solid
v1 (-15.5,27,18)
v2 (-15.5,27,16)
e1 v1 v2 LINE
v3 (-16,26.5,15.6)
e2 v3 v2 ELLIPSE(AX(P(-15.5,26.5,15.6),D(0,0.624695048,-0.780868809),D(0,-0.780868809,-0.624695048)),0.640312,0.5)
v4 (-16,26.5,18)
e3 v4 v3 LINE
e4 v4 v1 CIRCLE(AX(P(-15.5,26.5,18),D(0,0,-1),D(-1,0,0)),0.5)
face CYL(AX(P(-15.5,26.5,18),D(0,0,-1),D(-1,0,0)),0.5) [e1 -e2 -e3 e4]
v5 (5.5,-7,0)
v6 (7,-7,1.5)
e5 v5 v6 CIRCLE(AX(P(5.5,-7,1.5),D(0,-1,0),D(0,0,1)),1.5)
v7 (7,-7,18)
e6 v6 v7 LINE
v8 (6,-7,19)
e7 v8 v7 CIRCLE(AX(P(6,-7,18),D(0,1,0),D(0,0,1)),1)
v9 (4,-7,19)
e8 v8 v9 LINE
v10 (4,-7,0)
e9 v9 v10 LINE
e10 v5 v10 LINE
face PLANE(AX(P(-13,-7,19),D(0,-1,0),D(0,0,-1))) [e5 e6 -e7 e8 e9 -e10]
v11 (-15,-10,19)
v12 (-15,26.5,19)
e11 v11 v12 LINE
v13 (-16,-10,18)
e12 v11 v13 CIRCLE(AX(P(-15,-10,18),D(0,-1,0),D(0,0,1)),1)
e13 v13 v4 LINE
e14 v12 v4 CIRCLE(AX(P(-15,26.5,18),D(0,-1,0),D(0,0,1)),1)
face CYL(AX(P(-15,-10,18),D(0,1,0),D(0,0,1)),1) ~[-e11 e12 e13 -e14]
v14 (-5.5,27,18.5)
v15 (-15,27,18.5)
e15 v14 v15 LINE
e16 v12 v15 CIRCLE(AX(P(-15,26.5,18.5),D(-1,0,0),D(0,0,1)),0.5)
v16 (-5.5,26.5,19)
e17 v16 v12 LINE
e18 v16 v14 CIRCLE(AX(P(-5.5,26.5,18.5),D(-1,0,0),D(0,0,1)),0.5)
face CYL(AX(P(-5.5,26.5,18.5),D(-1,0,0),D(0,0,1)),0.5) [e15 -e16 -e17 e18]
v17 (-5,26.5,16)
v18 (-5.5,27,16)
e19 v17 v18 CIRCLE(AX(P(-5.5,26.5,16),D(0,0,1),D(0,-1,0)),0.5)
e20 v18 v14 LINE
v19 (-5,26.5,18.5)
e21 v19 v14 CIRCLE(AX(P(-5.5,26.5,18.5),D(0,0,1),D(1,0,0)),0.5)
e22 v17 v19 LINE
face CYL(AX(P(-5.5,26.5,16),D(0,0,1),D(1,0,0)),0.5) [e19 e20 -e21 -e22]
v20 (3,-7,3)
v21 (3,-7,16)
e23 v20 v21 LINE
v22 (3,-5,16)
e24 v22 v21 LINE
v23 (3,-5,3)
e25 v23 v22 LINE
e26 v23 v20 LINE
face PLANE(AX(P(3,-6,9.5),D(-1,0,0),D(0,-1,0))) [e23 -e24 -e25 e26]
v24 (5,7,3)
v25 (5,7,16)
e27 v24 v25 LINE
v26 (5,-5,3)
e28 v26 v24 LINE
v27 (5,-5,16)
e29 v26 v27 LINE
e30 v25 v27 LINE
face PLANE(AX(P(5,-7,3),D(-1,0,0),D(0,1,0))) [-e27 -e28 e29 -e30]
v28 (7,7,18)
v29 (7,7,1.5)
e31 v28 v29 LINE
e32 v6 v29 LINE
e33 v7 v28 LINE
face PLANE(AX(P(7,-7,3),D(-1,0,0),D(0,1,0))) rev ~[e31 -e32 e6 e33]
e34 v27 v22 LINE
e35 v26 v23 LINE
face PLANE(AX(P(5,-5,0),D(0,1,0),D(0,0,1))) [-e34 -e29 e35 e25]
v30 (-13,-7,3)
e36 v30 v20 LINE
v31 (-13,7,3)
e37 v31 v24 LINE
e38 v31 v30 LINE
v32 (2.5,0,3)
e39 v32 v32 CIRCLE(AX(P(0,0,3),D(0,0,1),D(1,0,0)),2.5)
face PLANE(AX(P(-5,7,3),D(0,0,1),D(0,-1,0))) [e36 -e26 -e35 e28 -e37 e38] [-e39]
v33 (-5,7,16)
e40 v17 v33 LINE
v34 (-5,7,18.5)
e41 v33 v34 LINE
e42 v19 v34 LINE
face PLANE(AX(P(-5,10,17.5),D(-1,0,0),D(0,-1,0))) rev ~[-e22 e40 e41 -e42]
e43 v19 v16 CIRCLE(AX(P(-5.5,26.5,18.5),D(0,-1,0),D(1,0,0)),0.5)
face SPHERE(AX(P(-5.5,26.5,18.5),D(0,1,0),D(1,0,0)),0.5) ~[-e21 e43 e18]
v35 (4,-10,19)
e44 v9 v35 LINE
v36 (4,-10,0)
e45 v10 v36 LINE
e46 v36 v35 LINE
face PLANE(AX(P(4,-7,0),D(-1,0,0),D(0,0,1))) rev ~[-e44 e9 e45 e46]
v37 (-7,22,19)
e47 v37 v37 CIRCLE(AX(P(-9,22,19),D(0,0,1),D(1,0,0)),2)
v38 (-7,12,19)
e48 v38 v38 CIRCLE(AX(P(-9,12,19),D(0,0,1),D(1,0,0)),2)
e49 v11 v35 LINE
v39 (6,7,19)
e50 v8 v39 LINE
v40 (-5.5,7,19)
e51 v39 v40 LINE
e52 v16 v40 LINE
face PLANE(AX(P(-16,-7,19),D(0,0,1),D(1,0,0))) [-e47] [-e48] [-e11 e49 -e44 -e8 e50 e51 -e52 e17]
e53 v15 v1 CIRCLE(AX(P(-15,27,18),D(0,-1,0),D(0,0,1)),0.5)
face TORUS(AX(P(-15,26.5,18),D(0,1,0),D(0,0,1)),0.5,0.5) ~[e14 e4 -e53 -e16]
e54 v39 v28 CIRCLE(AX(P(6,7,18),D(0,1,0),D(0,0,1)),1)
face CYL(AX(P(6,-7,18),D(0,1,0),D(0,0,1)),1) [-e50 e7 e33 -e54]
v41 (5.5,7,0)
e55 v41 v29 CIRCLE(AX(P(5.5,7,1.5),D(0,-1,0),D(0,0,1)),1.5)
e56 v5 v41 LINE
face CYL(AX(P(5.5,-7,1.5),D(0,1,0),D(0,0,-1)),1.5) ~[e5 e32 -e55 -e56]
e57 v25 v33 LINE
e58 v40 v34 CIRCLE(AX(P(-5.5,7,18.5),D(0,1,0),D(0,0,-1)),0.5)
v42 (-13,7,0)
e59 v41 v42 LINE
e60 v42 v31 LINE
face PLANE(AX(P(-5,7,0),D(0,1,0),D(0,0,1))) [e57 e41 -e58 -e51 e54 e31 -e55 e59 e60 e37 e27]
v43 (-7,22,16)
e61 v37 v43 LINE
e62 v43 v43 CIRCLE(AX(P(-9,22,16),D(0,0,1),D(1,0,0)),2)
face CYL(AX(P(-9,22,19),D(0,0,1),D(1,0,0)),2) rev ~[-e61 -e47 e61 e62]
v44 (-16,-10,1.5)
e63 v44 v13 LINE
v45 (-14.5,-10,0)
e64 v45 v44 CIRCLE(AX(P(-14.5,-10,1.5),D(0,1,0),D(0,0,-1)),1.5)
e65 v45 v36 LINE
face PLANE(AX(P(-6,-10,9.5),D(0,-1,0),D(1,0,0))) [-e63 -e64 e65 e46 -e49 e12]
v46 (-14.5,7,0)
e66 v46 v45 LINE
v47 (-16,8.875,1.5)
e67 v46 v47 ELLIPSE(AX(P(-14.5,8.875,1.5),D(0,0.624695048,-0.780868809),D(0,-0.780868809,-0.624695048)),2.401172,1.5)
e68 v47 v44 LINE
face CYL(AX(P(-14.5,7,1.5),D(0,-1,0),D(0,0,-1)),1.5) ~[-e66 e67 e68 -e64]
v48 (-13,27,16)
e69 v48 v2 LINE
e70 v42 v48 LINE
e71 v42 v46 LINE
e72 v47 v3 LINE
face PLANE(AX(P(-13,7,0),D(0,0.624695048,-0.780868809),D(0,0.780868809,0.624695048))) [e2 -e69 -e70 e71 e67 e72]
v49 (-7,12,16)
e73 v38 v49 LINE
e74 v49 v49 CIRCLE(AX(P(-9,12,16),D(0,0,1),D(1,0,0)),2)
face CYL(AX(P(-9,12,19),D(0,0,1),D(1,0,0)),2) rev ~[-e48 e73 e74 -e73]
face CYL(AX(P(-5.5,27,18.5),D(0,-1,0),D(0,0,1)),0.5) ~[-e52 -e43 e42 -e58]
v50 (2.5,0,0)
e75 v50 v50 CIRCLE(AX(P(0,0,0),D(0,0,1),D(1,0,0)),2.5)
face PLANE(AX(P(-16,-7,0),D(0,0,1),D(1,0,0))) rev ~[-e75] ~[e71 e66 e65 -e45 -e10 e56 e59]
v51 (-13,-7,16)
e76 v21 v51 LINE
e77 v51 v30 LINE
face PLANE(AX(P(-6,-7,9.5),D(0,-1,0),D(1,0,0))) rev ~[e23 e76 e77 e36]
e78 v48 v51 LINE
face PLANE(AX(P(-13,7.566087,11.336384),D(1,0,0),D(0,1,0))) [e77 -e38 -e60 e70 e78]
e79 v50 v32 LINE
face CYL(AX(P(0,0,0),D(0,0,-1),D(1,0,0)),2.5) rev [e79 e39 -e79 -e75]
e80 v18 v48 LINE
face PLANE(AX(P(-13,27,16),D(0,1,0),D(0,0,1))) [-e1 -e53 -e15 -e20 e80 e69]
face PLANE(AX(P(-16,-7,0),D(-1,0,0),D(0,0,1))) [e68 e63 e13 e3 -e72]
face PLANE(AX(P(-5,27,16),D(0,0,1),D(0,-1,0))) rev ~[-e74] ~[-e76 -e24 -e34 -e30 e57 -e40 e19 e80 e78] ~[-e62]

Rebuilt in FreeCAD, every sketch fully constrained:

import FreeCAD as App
import Part
import Sketcher
from FreeCAD import Vector


def edges_at(feature, points):
    """Names of the edges that pass closest to the given points."""
    edges = feature.Shape.Edges
    near = lambda p: min(range(len(edges)), key=lambda i: edges[i].distToShape(Part.Vertex(*p))[0])
    return sorted({f"Edge{near(p) + 1}" for p in points})


def add_polygon(sketch, points):
    """Adds a closed chain of lines whose ends are joined by coincident constraints."""
    first, n = sketch.GeometryCount, len(points)
    for a, b in zip(points, points[1:] + points[:1]):
        sketch.addGeometry(Part.LineSegment(App.Vector(*a, 0), App.Vector(*b, 0)), False)
    for i in range(n):
        sketch.addConstraint(Sketcher.Constraint("Coincident", first + i, 2, first + (i + 1) % n, 1))

doc = App.newDocument("Part")
body = doc.addObject("PartDesign::Body", "Body")

# Sketch on XY plane
sketch1 = doc.addObject("Sketcher::SketchObject", "Sketch")
body.addObject(sketch1)
sketch1.AttachmentSupport = (doc.XY_Plane, [""])
sketch1.MapMode = "FlatFace"
add_polygon(sketch1, [(-5, 7), (-5, -7), (7, -7), (7, 7)])  # lines 0-3
sketch1.addGeometry(Part.Circle(Vector(0, 0, 0), Vector(0, 0, 1), 2.5), False)  # 4
sketch1.addConstraint(Sketcher.Constraint("Vertical", 0))
sketch1.addConstraint(Sketcher.Constraint("Horizontal", 1))
sketch1.addConstraint(Sketcher.Constraint("Vertical", 2))
sketch1.addConstraint(Sketcher.Constraint("Horizontal", 3))
sketch1.addConstraint(Sketcher.Constraint("Coincident", 4, 3, -1, 1))
sketch1.addConstraint(Sketcher.Constraint("Diameter", 4, 5.0))
sketch1.addConstraint(Sketcher.Constraint("DistanceX", 1, 1, 1, 2, 12.0))
sketch1.addConstraint(Sketcher.Constraint("DistanceY", 0, 2, 0, 1, 14.0))
sketch1.addConstraint(Sketcher.Constraint("DistanceX", 0, 2, -1, 1, 5.0))
sketch1.addConstraint(Sketcher.Constraint("DistanceY", 0, 2, -1, 1, 7.0))
pad1 = doc.addObject("PartDesign::Pad", "Pad")
body.addObject(pad1)
pad1.Profile = sketch1
pad1.Length = 3

# Sketch on XY plane
sketch2 = doc.addObject("Sketcher::SketchObject", "Sketch001")
body.addObject(sketch2)
sketch2.AttachmentSupport = (doc.XY_Plane, [""])
sketch2.MapMode = "FlatFace"
sketch2.AttachmentOffset = App.Placement(Vector(0, 0, 3), App.Rotation())
add_polygon(sketch2, [(5, 7), (5, -7), (7, -7), (7, 7)])  # lines 0-3
sketch2.addConstraint(Sketcher.Constraint("Vertical", 0))
sketch2.addConstraint(Sketcher.Constraint("Horizontal", 1))
sketch2.addConstraint(Sketcher.Constraint("Vertical", 2))
sketch2.addConstraint(Sketcher.Constraint("Horizontal", 3))
sketch2.addConstraint(Sketcher.Constraint("DistanceX", 1, 1, 1, 2, 2.0))
sketch2.addConstraint(Sketcher.Constraint("DistanceY", 0, 2, 0, 1, 14.0))
sketch2.addConstraint(Sketcher.Constraint("DistanceX", -1, 1, 0, 2, 5.0))
sketch2.addConstraint(Sketcher.Constraint("DistanceY", 0, 2, -1, 1, 7.0))
pad2 = doc.addObject("PartDesign::Pad", "Pad001")
body.addObject(pad2)
pad2.Profile = sketch2
pad2.Length = 16

# Sketch on YZ plane
sketch3 = doc.addObject("Sketcher::SketchObject", "Sketch002")
body.addObject(sketch3)
sketch3.AttachmentSupport = (doc.YZ_Plane, [""])
sketch3.MapMode = "FlatFace"
sketch3.AttachmentOffset = App.Placement(Vector(0, 0, 5), App.Rotation())
add_polygon(sketch3, [(7, 19), (7, 16), (-7, 16), (-7, 19)])  # lines 0-3
sketch3.addConstraint(Sketcher.Constraint("Vertical", 0))
sketch3.addConstraint(Sketcher.Constraint("Horizontal", 1))
sketch3.addConstraint(Sketcher.Constraint("Vertical", 2))
sketch3.addConstraint(Sketcher.Constraint("Horizontal", 3))
sketch3.addConstraint(Sketcher.Constraint("DistanceX", 1, 2, 1, 1, 14.0))
sketch3.addConstraint(Sketcher.Constraint("DistanceY", 0, 2, 0, 1, 3.0))
sketch3.addConstraint(Sketcher.Constraint("DistanceX", -1, 1, 0, 2, 7.0))
sketch3.addConstraint(Sketcher.Constraint("DistanceY", -1, 1, 0, 2, 16.0))
pad3 = doc.addObject("PartDesign::Pad", "Pad002")
body.addObject(pad3)
pad3.Profile = sketch3
pad3.Length = 10
pad3.Reversed = True

# Sketch on YZ plane
sketch4 = doc.addObject("Sketcher::SketchObject", "Sketch003")
body.addObject(sketch4)
sketch4.AttachmentSupport = (doc.YZ_Plane, [""])
sketch4.MapMode = "FlatFace"
sketch4.AttachmentOffset = App.Placement(Vector(0, 0, -5), App.Rotation())
add_polygon(sketch4, [(7, 3), (7, 0), (-7, 0), (-7, 3)])  # lines 0-3
sketch4.addConstraint(Sketcher.Constraint("Vertical", 0))
sketch4.addConstraint(Sketcher.Constraint("Horizontal", 1))
sketch4.addConstraint(Sketcher.Constraint("Vertical", 2))
sketch4.addConstraint(Sketcher.Constraint("Horizontal", 3))
sketch4.addConstraint(Sketcher.Constraint("Symmetric", 0, 2, 1, 2, -1, 1))
sketch4.addConstraint(Sketcher.Constraint("DistanceX", 1, 2, 1, 1, 14.0))
sketch4.addConstraint(Sketcher.Constraint("DistanceY", 0, 2, 0, 1, 3.0))
pad4 = doc.addObject("PartDesign::Pad", "Pad003")
body.addObject(pad4)
pad4.Profile = sketch4
pad4.Length = 8
pad4.Reversed = True

# Sketch on YZ plane
sketch5 = doc.addObject("Sketcher::SketchObject", "Sketch004")
body.addObject(sketch5)
sketch5.AttachmentSupport = (doc.YZ_Plane, [""])
sketch5.MapMode = "FlatFace"
sketch5.AttachmentOffset = App.Placement(Vector(0, 0, -5), App.Rotation())
add_polygon(sketch5, [(27, 19), (27, 16), (-7, 16), (-7, 19)])  # lines 0-3
sketch5.addConstraint(Sketcher.Constraint("Vertical", 0))
sketch5.addConstraint(Sketcher.Constraint("Horizontal", 1))
sketch5.addConstraint(Sketcher.Constraint("Vertical", 2))
sketch5.addConstraint(Sketcher.Constraint("Horizontal", 3))
sketch5.addConstraint(Sketcher.Constraint("DistanceX", 1, 2, 1, 1, 34.0))
sketch5.addConstraint(Sketcher.Constraint("DistanceY", 0, 2, 0, 1, 3.0))
sketch5.addConstraint(Sketcher.Constraint("DistanceX", -1, 1, 0, 2, 27.0))
sketch5.addConstraint(Sketcher.Constraint("DistanceY", -1, 1, 0, 2, 16.0))
pad5 = doc.addObject("PartDesign::Pad", "Pad004")
body.addObject(pad5)
pad5.Profile = sketch5
pad5.Length = 8
pad5.Reversed = True

# Sketch on XY plane
sketch6 = doc.addObject("Sketcher::SketchObject", "Sketch005")
body.addObject(sketch6)
sketch6.AttachmentSupport = (doc.XY_Plane, [""])
sketch6.MapMode = "FlatFace"
sketch6.AttachmentOffset = App.Placement(Vector(0, 0, 19), App.Rotation())
sketch6.addGeometry(Part.Circle(Vector(-9, 22, 0), Vector(0, 0, 1), 2), False)
sketch6.addGeometry(Part.Circle(Vector(-9, 12, 0), Vector(0, 0, 1), 2), False)
sketch6.addConstraint(Sketcher.Constraint("Equal", 0, 1))
sketch6.addConstraint(Sketcher.Constraint("Vertical", 0, 3, 1, 3))
sketch6.addConstraint(Sketcher.Constraint("Diameter", 0, 4.0))
sketch6.addConstraint(Sketcher.Constraint("DistanceX", 0, 3, -1, 1, 9.0))
sketch6.addConstraint(Sketcher.Constraint("DistanceY", -1, 1, 0, 3, 22.0))
sketch6.addConstraint(Sketcher.Constraint("DistanceY", -1, 1, 1, 3, 12.0))
pocket1 = doc.addObject("PartDesign::Pocket", "Pocket")
body.addObject(pocket1)
pocket1.Profile = sketch6
pocket1.Type = "ThroughAll"

# Sketch on YZ plane
sketch7 = doc.addObject("Sketcher::SketchObject", "Sketch006")
body.addObject(sketch7)
sketch7.AttachmentSupport = (doc.YZ_Plane, [""])
sketch7.MapMode = "FlatFace"
sketch7.AttachmentOffset = App.Placement(Vector(0, 0, -13), App.Rotation())
add_polygon(sketch7, [(-7, 19), (27, 19), (27, 16), (7, 0), (-7, 0)])  # lines 0-4
sketch7.addConstraint(Sketcher.Constraint("Horizontal", 0))
sketch7.addConstraint(Sketcher.Constraint("Vertical", 1))
sketch7.addConstraint(Sketcher.Constraint("Horizontal", 3))
sketch7.addConstraint(Sketcher.Constraint("Vertical", 4))
sketch7.addConstraint(Sketcher.Constraint("Symmetric", 2, 2, 3, 2, -1, 1))
sketch7.addConstraint(Sketcher.Constraint("DistanceX", 0, 1, 0, 2, 34.0))
sketch7.addConstraint(Sketcher.Constraint("DistanceX", 3, 2, 3, 1, 14.0))
sketch7.addConstraint(Sketcher.Constraint("DistanceY", 1, 2, 1, 1, 3.0))
sketch7.addConstraint(Sketcher.Constraint("DistanceY", 4, 1, 4, 2, 19.0))
pad6 = doc.addObject("PartDesign::Pad", "Pad005")
body.addObject(pad6)
pad6.Profile = sketch7
pad6.Length = 3
pad6.Reversed = True

# Sketch on XZ plane
sketch8 = doc.addObject("Sketcher::SketchObject", "Sketch007")
body.addObject(sketch8)
sketch8.AttachmentSupport = (doc.XZ_Plane, [""])
sketch8.MapMode = "FlatFace"
sketch8.AttachmentOffset = App.Placement(Vector(0, 0, 7), App.Rotation())
add_polygon(sketch8, [(-16, 19), (-16, 0), (4, 0), (4, 19)])  # lines 0-3
sketch8.addConstraint(Sketcher.Constraint("Vertical", 0))
sketch8.addConstraint(Sketcher.Constraint("Horizontal", 1))
sketch8.addConstraint(Sketcher.Constraint("Vertical", 2))
sketch8.addConstraint(Sketcher.Constraint("Horizontal", 3))
sketch8.addConstraint(Sketcher.Constraint("PointOnObject", 0, 2, -1))
sketch8.addConstraint(Sketcher.Constraint("DistanceX", 1, 1, 1, 2, 20.0))
sketch8.addConstraint(Sketcher.Constraint("DistanceY", 0, 2, 0, 1, 19.0))
sketch8.addConstraint(Sketcher.Constraint("DistanceX", 0, 2, -1, 1, 16.0))
pad7 = doc.addObject("PartDesign::Pad", "Pad006")
body.addObject(pad7)
pad7.Profile = sketch8
pad7.Length = 3

# Sketch on YZ plane
sketch9 = doc.addObject("Sketcher::SketchObject", "Sketch008")
body.addObject(sketch9)
sketch9.AttachmentSupport = (doc.YZ_Plane, [""])
sketch9.MapMode = "FlatFace"
sketch9.AttachmentOffset = App.Placement(Vector(0, 0, 5), App.Rotation())
add_polygon(sketch9, [(-5, 19), (-5, 0), (-7, 0), (-7, 19)])  # lines 0-3
sketch9.addConstraint(Sketcher.Constraint("Vertical", 0))
sketch9.addConstraint(Sketcher.Constraint("Horizontal", 1))
sketch9.addConstraint(Sketcher.Constraint("Vertical", 2))
sketch9.addConstraint(Sketcher.Constraint("Horizontal", 3))
sketch9.addConstraint(Sketcher.Constraint("PointOnObject", 0, 2, -1))
sketch9.addConstraint(Sketcher.Constraint("DistanceX", 1, 2, 1, 1, 2.0))
sketch9.addConstraint(Sketcher.Constraint("DistanceY", 0, 2, 0, 1, 19.0))
sketch9.addConstraint(Sketcher.Constraint("DistanceX", 0, 2, -1, 1, 5.0))
pad8 = doc.addObject("PartDesign::Pad", "Pad007")
body.addObject(pad8)
pad8.Profile = sketch9
pad8.Length = 2
pad8.Reversed = True
doc.recompute()

fillet = doc.addObject("PartDesign::Fillet", "Fillet")
body.addObject(fillet)
fillet.Base = (pad8, edges_at(pad8, [(7, 0, 0)]))
fillet.Radius = 1.5
doc.recompute()

fillet2 = doc.addObject("PartDesign::Fillet", "Fillet001")
body.addObject(fillet2)
fillet2.Base = (fillet, edges_at(fillet, [(-16, -1.5, 0)]))
fillet2.Radius = 1.5
doc.recompute()

fillet3 = doc.addObject("PartDesign::Fillet", "Fillet002")
body.addObject(fillet3)
fillet3.Base = (fillet2, edges_at(fillet2, [(7, 0, 19)]))
fillet3.Radius = 1
doc.recompute()

fillet4 = doc.addObject("PartDesign::Fillet", "Fillet003")
body.addObject(fillet4)
fillet4.Base = (fillet3, edges_at(fillet3, [(-16, 8.5, 19)]))
fillet4.Radius = 1
doc.recompute()

fillet5 = doc.addObject("PartDesign::Fillet", "Fillet004")
body.addObject(fillet5)
fillet5.Base = (fillet4, edges_at(fillet4, [(-5, 17, 19)]))
fillet5.Radius = 0.5
doc.recompute()

fillet6 = doc.addObject("PartDesign::Fillet", "Fillet005")
body.addObject(fillet6)
fillet6.Base = (fillet5, edges_at(fillet5, [(-10.25, 27, 19), (-10.25, 27, 19)]))
fillet6.Radius = 0.5

doc.recompute()
